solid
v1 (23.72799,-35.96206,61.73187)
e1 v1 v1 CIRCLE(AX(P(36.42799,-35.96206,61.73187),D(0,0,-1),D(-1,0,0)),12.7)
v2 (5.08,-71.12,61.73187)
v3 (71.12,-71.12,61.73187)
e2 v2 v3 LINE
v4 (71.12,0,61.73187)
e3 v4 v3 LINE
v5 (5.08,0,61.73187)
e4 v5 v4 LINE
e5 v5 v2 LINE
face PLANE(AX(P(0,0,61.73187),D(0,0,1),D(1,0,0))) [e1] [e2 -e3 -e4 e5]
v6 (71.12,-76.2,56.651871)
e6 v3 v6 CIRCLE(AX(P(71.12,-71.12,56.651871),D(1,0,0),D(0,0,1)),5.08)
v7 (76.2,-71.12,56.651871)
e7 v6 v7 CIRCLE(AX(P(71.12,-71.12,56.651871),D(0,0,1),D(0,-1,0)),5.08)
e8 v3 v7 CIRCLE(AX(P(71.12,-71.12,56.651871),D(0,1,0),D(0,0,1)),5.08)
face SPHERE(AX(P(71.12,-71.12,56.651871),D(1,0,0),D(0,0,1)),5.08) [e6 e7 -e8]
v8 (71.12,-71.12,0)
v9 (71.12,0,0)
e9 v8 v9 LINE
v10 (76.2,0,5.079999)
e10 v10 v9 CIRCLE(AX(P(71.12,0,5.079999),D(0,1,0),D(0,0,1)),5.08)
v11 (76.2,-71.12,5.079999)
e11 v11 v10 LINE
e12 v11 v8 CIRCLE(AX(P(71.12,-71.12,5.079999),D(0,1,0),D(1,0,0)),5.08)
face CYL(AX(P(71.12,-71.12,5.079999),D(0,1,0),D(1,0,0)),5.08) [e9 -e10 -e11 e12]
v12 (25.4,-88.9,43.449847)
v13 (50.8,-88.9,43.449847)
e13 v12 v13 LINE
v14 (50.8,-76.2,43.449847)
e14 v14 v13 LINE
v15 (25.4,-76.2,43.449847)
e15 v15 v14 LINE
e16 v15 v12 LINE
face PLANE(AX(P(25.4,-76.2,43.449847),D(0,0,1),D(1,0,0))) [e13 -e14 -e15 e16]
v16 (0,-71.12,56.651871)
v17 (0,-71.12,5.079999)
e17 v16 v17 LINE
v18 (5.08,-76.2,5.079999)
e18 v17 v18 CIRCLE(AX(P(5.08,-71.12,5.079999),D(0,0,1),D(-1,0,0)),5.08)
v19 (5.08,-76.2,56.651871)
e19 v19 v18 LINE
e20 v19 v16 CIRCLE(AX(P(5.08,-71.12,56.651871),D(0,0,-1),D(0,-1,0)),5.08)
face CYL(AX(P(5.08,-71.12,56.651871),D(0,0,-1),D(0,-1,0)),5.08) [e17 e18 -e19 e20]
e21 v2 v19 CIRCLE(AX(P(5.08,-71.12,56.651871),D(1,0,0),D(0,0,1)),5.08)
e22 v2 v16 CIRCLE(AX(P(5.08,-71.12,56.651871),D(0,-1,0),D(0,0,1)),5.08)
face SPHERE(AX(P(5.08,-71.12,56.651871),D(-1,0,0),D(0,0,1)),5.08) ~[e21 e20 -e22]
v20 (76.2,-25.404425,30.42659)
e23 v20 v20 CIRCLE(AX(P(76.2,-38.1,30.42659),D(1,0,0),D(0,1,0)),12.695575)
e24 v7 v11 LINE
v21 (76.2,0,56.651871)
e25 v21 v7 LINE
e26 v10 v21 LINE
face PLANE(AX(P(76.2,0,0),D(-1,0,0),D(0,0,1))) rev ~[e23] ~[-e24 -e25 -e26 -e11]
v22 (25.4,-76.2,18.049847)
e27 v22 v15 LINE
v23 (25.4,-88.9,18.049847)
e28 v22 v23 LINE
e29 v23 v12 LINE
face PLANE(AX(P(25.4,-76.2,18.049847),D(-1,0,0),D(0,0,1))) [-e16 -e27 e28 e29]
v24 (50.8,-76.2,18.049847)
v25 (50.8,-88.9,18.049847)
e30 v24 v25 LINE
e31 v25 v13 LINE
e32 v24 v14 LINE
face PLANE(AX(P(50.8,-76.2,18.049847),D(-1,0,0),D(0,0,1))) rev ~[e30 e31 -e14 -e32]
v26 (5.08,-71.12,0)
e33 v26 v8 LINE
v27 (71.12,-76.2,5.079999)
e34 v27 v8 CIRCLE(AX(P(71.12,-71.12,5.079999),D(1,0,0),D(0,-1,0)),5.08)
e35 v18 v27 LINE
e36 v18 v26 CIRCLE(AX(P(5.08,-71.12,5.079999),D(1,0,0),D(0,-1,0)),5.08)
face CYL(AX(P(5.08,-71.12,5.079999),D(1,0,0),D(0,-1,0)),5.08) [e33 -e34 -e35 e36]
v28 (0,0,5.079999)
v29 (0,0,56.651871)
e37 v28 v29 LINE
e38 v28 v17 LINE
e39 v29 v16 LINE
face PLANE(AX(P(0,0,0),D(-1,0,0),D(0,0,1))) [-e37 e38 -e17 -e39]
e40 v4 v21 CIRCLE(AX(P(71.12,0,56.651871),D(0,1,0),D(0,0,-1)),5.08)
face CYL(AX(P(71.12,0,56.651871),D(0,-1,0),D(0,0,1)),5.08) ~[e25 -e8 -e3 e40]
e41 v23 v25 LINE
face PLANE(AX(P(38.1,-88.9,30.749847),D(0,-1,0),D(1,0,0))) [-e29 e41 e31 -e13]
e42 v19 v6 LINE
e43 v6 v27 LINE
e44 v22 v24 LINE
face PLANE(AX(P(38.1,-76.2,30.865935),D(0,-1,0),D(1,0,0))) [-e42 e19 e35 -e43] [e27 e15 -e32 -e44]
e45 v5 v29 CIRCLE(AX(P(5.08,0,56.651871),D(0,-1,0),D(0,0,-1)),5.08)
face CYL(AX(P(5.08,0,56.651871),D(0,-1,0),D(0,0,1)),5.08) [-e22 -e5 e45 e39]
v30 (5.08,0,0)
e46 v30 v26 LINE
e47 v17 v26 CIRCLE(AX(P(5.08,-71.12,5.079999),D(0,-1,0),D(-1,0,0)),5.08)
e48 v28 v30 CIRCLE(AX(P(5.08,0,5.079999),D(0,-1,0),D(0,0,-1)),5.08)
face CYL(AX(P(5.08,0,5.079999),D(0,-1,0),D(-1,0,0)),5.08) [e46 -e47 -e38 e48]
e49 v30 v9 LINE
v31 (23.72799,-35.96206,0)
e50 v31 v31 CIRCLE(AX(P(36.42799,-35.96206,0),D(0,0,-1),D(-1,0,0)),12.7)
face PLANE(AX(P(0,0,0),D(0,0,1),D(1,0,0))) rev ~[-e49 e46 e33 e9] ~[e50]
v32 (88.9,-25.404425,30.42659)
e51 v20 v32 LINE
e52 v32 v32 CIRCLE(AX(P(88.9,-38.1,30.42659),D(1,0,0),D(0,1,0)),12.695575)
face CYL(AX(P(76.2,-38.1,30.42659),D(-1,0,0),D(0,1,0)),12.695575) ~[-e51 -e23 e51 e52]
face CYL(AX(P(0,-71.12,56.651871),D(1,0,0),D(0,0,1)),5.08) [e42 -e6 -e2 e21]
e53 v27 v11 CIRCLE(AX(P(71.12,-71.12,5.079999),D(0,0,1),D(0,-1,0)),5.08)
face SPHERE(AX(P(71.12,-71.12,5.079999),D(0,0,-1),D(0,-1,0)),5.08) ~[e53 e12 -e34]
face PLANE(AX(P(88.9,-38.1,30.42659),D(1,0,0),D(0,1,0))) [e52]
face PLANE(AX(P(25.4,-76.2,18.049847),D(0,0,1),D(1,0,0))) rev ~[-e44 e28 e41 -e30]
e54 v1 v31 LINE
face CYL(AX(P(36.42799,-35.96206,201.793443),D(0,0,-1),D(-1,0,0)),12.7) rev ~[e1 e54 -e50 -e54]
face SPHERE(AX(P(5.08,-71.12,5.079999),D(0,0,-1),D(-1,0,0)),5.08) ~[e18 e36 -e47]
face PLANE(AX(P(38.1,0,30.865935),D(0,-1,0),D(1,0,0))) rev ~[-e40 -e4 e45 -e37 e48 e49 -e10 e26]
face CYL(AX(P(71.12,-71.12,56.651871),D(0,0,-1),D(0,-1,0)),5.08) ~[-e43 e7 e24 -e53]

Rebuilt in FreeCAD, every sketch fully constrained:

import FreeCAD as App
import Part
import Sketcher

V = App.Vector
Q = App.Units.Quantity


def edges_at(feature, points):
    """Names of the edges that pass closest to the given points."""
    edges = feature.Shape.Edges
    near = lambda p: min(range(len(edges)), key=lambda i: edges[i].distToShape(Part.Vertex(*p))[0])
    return sorted({f"Edge{near(p) + 1}" for p in points})

doc = App.newDocument("Part")
body = doc.addObject("PartDesign::Body", "Body")

# Sketch on XZ plane
sketch1 = doc.addObject("Sketcher::SketchObject", "Sketch")
body.addObject(sketch1)
sketch1.AttachmentSupport = (doc.XZ_Plane, [""])
sketch1.MapMode = "FlatFace"
sketch1.addGeometry([
    Part.LineSegment(V(0, 62, 0), V(0, 0, 0)),
    Part.LineSegment(V(0, 0, 0), V(76, 0, 0)),
    Part.LineSegment(V(76, 0, 0), V(76, 62, 0)),
    Part.LineSegment(V(76, 62, 0), V(0, 62, 0)),
], False)
sketch1.addConstraint([
    Sketcher.Constraint("Coincident", 0, 2, 1, 1),
    Sketcher.Constraint("Coincident", 1, 2, 2, 1),
    Sketcher.Constraint("Coincident", 2, 2, 3, 1),
    Sketcher.Constraint("Coincident", 3, 2, 0, 1),
    Sketcher.Constraint("Vertical", 0),
    Sketcher.Constraint("Horizontal", 1),
    Sketcher.Constraint("Vertical", 2),
    Sketcher.Constraint("Horizontal", 3),
    Sketcher.Constraint("Coincident", 0, 2, -1, 1),
    Sketcher.Constraint("DistanceX", 1, 1, 1, 2, Q("3 in")),
    Sketcher.Constraint("DistanceY", 0, 2, 0, 1, Q("61.731871 mm")),
])
pad1 = doc.addObject("PartDesign::Pad", "Pad")
body.addObject(pad1)
pad1.Profile = sketch1
pad1.Length = Q("3 in")

# Sketch on YZ plane
sketch2 = doc.addObject("Sketcher::SketchObject", "Sketch001")
body.addObject(sketch2)
sketch2.AttachmentSupport = (doc.YZ_Plane, [""])
sketch2.MapMode = "FlatFace"
sketch2.AttachmentOffset = App.Placement(V(0, 0, 3 * 25.4), App.Rotation())
sketch2.addGeometry(Part.Circle(V(-38, 30, 0), V(0, 0, 1), 13), False)
sketch2.addConstraint([
    Sketcher.Constraint("DistanceX", 0, 3, -1, 1, Q("1.5 in")),
    Sketcher.Constraint("Diameter", 0, Q("25.39115 mm")),
    Sketcher.Constraint("DistanceY", -1, 1, 0, 3, Q("30.42659 mm")),
])
pad2 = doc.addObject("PartDesign::Pad", "Pad001")
body.addObject(pad2)
pad2.Profile = sketch2
pad2.Length = Q("0.5 in")

# Sketch on XZ plane
sketch3 = doc.addObject("Sketcher::SketchObject", "Sketch002")
body.addObject(sketch3)
sketch3.AttachmentSupport = (doc.XZ_Plane, [""])
sketch3.MapMode = "FlatFace"
sketch3.AttachmentOffset = App.Placement(V(0, 0, 3 * 25.4), App.Rotation())
sketch3.addGeometry([
    Part.LineSegment(V(25, 43, 0), V(25, 18, 0)),
    Part.LineSegment(V(25, 18, 0), V(51, 18, 0)),
    Part.LineSegment(V(51, 18, 0), V(51, 43, 0)),
    Part.LineSegment(V(51, 43, 0), V(25, 43, 0)),
], False)
sketch3.addConstraint([
    Sketcher.Constraint("Coincident", 0, 2, 1, 1),
    Sketcher.Constraint("Coincident", 1, 2, 2, 1),
    Sketcher.Constraint("Coincident", 2, 2, 3, 1),
    Sketcher.Constraint("Coincident", 3, 2, 0, 1),
    Sketcher.Constraint("Vertical", 0),
    Sketcher.Constraint("Horizontal", 1),
    Sketcher.Constraint("Vertical", 2),
    Sketcher.Constraint("Horizontal", 3),
    Sketcher.Constraint("Equal", 3, 0),
    Sketcher.Constraint("DistanceX", 1, 1, 1, 2, Q("1 in")),
    Sketcher.Constraint("DistanceX", -1, 1, 0, 2, Q("1 in")),
    Sketcher.Constraint("DistanceY", -1, 1, 0, 2, Q("18.049847 mm")),
])
pad3 = doc.addObject("PartDesign::Pad", "Pad002")
body.addObject(pad3)
pad3.Profile = sketch3
pad3.Length = Q("0.5 in")

# Sketch on XY plane
sketch4 = doc.addObject("Sketcher::SketchObject", "Sketch003")
body.addObject(sketch4)
sketch4.AttachmentSupport = (doc.XY_Plane, [""])
sketch4.MapMode = "FlatFace"
sketch4.AttachmentOffset = App.Placement(V(0, 0, 61.731871), App.Rotation())
sketch4.addGeometry(Part.Circle(V(36, -36, 0), V(0, 0, 1), 13), False)
sketch4.addConstraint([
    Sketcher.Constraint("Diameter", 0, Q("1 in")),
    Sketcher.Constraint("DistanceX", -1, 1, 0, 3, Q("36.42799 mm")),
    Sketcher.Constraint("DistanceY", 0, 3, -1, 1, Q("35.96206 mm")),
])
doc.recompute()
hole = doc.addObject("PartDesign::Hole", "Hole")
body.addObject(hole)
hole.Profile = sketch4
hole.ThreadType = "None"
hole.Diameter = Q("1 in")
hole.DepthType = "ThroughAll"
doc.recompute()

fillet = doc.addObject("PartDesign::Fillet", "Fillet")
body.addObject(fillet)
fillet.Base = (hole, edges_at(hole, [(38.1, -76.2, 61.732)]))
fillet.Radius = Q("0.2 in")
doc.recompute()

fillet2 = doc.addObject("PartDesign::Fillet", "Fillet001")
body.addObject(fillet2)
fillet2.Base = (fillet, edges_at(fillet, [(76.2, -35.56, 61.732)]))
fillet2.Radius = Q("0.2 in")
doc.recompute()

fillet3 = doc.addObject("PartDesign::Fillet", "Fillet002")
body.addObject(fillet3)
fillet3.Base = (fillet2, edges_at(fillet2, [(0, -35.56, 61.732)]))
fillet3.Radius = Q("0.2 in")
doc.recompute()

fillet4 = doc.addObject("PartDesign::Fillet", "Fillet003")
body.addObject(fillet4)
fillet4.Base = (fillet3, edges_at(fillet3, [(38.1, -76.2, 0)]))
fillet4.Radius = Q("0.2 in")

doc.recompute()
